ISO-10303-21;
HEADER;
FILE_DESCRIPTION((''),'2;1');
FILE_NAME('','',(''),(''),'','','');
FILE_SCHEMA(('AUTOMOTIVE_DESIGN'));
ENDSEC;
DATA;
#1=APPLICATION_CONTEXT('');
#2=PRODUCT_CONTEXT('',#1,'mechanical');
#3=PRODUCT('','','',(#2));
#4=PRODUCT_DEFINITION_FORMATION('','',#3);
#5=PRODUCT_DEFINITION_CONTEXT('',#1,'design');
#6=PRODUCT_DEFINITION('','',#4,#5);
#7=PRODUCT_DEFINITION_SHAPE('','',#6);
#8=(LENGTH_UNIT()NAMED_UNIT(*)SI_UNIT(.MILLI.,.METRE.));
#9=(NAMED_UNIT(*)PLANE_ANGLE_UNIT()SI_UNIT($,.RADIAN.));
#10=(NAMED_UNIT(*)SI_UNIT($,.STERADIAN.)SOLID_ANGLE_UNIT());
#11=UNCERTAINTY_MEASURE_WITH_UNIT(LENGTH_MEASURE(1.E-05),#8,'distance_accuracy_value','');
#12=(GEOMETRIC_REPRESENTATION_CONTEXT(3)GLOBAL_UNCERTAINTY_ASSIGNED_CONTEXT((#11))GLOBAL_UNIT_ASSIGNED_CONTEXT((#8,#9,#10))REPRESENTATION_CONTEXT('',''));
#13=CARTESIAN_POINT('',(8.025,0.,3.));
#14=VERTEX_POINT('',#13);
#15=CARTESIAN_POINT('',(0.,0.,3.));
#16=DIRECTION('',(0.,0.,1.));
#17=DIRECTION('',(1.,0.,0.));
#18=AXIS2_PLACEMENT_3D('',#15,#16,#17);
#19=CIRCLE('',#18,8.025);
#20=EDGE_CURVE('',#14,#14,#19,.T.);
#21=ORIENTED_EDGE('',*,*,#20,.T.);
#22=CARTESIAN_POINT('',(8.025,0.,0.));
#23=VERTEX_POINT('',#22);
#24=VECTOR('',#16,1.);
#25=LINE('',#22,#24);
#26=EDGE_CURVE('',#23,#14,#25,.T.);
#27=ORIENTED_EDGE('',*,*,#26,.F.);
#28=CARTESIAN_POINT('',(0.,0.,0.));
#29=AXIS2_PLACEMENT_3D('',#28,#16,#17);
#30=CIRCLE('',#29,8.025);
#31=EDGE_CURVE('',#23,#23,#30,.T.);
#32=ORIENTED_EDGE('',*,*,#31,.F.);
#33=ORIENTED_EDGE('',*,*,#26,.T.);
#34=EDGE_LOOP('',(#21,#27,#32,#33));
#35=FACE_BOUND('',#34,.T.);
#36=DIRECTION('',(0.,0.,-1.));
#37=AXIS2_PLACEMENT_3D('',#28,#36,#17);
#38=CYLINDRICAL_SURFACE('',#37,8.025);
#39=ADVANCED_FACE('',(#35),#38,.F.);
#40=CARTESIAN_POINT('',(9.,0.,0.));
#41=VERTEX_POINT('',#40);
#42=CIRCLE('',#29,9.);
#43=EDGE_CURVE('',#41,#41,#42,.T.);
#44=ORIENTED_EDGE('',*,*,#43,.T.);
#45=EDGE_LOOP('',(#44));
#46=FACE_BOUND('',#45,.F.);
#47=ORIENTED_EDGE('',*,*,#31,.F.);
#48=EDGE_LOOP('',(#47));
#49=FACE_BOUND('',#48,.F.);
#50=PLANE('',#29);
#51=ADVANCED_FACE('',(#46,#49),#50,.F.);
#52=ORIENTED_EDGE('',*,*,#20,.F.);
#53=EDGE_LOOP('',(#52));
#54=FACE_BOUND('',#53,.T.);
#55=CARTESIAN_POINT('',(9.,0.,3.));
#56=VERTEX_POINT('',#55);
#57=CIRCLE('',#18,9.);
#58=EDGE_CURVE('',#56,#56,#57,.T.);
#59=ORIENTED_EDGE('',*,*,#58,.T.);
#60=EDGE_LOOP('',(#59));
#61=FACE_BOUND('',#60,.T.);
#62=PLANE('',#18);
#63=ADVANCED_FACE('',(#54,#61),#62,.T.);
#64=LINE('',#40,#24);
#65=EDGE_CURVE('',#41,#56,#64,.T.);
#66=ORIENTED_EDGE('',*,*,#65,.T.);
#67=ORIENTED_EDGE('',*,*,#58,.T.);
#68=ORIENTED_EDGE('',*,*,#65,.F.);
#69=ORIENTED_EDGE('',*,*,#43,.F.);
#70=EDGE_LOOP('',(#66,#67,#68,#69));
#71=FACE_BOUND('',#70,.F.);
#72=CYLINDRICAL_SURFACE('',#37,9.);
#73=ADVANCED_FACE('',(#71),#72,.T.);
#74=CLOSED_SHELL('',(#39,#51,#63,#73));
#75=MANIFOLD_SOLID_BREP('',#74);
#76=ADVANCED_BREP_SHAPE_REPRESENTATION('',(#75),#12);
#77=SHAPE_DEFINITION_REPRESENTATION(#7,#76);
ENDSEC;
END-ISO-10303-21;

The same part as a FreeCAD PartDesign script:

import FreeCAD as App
import Part
import Sketcher

V = App.Vector
Q = App.Units.Quantity

doc = App.newDocument("Part")
body = doc.addObject("PartDesign::Body", "Body")

sketch1 = doc.addObject("Sketcher::SketchObject", "Sketch")
body.addObject(sketch1)
sketch1.AttachmentSupport = (doc.XY_Plane, [""])
sketch1.MapMode = "FlatFace"
sketch1.addGeometry(Part.Circle(V(0, 0, 0), V(0, 0, 1), 9), False)
sketch1.addGeometry(Part.Circle(V(0, 0, 0), V(0, 0, 1), 8.025), False)
sketch1.addConstraint(Sketcher.Constraint("Coincident", 0, 3, -1, 1))
sketch1.addConstraint(Sketcher.Constraint("Coincident", 1, 3, -1, 1))
sketch1.addConstraint(Sketcher.Constraint("Diameter", 0, Q("18 mm")))
sketch1.addConstraint(Sketcher.Constraint("Diameter", 1, Q("16.05 mm")))
pad1 = doc.addObject("PartDesign::Pad", "Pad")
body.addObject(pad1)
pad1.Profile = sketch1
pad1.Length = 3

doc.recompute()
